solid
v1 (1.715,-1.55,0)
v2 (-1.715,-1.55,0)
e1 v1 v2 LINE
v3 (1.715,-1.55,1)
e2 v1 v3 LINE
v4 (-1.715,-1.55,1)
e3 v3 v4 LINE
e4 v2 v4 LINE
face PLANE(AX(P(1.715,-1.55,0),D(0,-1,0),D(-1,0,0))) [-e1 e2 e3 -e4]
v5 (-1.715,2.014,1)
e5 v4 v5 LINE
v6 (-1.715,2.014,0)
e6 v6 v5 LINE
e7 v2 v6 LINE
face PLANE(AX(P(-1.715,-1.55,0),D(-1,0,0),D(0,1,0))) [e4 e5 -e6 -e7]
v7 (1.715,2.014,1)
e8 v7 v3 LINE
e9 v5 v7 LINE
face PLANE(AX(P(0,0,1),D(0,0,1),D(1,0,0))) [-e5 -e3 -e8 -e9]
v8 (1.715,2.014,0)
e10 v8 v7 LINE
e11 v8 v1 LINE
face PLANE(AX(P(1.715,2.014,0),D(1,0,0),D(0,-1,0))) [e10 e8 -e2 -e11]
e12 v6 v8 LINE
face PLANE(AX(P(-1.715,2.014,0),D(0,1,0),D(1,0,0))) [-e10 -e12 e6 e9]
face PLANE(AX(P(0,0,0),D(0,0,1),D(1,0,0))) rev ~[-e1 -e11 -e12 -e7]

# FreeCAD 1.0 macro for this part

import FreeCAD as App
import Part
import Sketcher
from FreeCAD import Vector

doc = App.newDocument("Part")
params = doc.addObject("Spreadsheet::Sheet", "Params")
for row, (alias, value) in enumerate([
    ("sketch1_width", "3.43 mm"),
    ("pad1_length", "1 mm"),
], start=1):
    params.set(f"A{row}", alias)
    params.set(f"B{row}", "=" + value)
    params.setAlias(f"B{row}", alias)

body = doc.addObject("PartDesign::Body", "Body")

# Sketch on XY plane
sketch1 = body.newObject("Sketcher::SketchObject", "Sketch")
sketch1.AttachmentSupport = (doc.getObject("XY_Plane"), [""])
sketch1.MapMode = "FlatFace"
sketch1.addGeometry(Part.LineSegment(Vector(-1.7, 2, 0), Vector(-1.7, -1.6, 0)), False)
sketch1.addGeometry(Part.LineSegment(Vector(-1.7, -1.6, 0), Vector(1.7, -1.6, 0)), False)
sketch1.addGeometry(Part.LineSegment(Vector(1.7, -1.6, 0), Vector(1.7, 2, 0)), False)
sketch1.addGeometry(Part.LineSegment(Vector(1.7, 2, 0), Vector(-1.7, 2, 0)), False)
sketch1.addConstraint(Sketcher.Constraint("Coincident", 0, 2, 1, 1))
sketch1.addConstraint(Sketcher.Constraint("Coincident", 1, 2, 2, 1))
sketch1.addConstraint(Sketcher.Constraint("Coincident", 2, 2, 3, 1))
sketch1.addConstraint(Sketcher.Constraint("Coincident", 3, 2, 0, 1))
sketch1.addConstraint(Sketcher.Constraint("Vertical", 0))
sketch1.addConstraint(Sketcher.Constraint("Horizontal", 1))
sketch1.addConstraint(Sketcher.Constraint("Vertical", 2))
sketch1.addConstraint(Sketcher.Constraint("Horizontal", 3))
sketch1.addConstraint(Sketcher.Constraint("DistanceX", 1, 1, 1, 2, 3.43))
sketch1.addConstraint(Sketcher.Constraint("DistanceY", 0, 2, 0, 1, 3.564))
sketch1.addConstraint(Sketcher.Constraint("DistanceY", 0, 2, -1, 1, 1.55))
sketch1.addConstraint(Sketcher.Constraint("DistanceX", 0, 2, -1, 1, 1.715))
sketch1.setExpression("Constraints[8]", "Params.sketch1_width")
pad1 = body.newObject("PartDesign::Pad", "Pad")
pad1.Profile = sketch1
pad1.setExpression("Length", "Params.pad1_length")

doc.recompute()
